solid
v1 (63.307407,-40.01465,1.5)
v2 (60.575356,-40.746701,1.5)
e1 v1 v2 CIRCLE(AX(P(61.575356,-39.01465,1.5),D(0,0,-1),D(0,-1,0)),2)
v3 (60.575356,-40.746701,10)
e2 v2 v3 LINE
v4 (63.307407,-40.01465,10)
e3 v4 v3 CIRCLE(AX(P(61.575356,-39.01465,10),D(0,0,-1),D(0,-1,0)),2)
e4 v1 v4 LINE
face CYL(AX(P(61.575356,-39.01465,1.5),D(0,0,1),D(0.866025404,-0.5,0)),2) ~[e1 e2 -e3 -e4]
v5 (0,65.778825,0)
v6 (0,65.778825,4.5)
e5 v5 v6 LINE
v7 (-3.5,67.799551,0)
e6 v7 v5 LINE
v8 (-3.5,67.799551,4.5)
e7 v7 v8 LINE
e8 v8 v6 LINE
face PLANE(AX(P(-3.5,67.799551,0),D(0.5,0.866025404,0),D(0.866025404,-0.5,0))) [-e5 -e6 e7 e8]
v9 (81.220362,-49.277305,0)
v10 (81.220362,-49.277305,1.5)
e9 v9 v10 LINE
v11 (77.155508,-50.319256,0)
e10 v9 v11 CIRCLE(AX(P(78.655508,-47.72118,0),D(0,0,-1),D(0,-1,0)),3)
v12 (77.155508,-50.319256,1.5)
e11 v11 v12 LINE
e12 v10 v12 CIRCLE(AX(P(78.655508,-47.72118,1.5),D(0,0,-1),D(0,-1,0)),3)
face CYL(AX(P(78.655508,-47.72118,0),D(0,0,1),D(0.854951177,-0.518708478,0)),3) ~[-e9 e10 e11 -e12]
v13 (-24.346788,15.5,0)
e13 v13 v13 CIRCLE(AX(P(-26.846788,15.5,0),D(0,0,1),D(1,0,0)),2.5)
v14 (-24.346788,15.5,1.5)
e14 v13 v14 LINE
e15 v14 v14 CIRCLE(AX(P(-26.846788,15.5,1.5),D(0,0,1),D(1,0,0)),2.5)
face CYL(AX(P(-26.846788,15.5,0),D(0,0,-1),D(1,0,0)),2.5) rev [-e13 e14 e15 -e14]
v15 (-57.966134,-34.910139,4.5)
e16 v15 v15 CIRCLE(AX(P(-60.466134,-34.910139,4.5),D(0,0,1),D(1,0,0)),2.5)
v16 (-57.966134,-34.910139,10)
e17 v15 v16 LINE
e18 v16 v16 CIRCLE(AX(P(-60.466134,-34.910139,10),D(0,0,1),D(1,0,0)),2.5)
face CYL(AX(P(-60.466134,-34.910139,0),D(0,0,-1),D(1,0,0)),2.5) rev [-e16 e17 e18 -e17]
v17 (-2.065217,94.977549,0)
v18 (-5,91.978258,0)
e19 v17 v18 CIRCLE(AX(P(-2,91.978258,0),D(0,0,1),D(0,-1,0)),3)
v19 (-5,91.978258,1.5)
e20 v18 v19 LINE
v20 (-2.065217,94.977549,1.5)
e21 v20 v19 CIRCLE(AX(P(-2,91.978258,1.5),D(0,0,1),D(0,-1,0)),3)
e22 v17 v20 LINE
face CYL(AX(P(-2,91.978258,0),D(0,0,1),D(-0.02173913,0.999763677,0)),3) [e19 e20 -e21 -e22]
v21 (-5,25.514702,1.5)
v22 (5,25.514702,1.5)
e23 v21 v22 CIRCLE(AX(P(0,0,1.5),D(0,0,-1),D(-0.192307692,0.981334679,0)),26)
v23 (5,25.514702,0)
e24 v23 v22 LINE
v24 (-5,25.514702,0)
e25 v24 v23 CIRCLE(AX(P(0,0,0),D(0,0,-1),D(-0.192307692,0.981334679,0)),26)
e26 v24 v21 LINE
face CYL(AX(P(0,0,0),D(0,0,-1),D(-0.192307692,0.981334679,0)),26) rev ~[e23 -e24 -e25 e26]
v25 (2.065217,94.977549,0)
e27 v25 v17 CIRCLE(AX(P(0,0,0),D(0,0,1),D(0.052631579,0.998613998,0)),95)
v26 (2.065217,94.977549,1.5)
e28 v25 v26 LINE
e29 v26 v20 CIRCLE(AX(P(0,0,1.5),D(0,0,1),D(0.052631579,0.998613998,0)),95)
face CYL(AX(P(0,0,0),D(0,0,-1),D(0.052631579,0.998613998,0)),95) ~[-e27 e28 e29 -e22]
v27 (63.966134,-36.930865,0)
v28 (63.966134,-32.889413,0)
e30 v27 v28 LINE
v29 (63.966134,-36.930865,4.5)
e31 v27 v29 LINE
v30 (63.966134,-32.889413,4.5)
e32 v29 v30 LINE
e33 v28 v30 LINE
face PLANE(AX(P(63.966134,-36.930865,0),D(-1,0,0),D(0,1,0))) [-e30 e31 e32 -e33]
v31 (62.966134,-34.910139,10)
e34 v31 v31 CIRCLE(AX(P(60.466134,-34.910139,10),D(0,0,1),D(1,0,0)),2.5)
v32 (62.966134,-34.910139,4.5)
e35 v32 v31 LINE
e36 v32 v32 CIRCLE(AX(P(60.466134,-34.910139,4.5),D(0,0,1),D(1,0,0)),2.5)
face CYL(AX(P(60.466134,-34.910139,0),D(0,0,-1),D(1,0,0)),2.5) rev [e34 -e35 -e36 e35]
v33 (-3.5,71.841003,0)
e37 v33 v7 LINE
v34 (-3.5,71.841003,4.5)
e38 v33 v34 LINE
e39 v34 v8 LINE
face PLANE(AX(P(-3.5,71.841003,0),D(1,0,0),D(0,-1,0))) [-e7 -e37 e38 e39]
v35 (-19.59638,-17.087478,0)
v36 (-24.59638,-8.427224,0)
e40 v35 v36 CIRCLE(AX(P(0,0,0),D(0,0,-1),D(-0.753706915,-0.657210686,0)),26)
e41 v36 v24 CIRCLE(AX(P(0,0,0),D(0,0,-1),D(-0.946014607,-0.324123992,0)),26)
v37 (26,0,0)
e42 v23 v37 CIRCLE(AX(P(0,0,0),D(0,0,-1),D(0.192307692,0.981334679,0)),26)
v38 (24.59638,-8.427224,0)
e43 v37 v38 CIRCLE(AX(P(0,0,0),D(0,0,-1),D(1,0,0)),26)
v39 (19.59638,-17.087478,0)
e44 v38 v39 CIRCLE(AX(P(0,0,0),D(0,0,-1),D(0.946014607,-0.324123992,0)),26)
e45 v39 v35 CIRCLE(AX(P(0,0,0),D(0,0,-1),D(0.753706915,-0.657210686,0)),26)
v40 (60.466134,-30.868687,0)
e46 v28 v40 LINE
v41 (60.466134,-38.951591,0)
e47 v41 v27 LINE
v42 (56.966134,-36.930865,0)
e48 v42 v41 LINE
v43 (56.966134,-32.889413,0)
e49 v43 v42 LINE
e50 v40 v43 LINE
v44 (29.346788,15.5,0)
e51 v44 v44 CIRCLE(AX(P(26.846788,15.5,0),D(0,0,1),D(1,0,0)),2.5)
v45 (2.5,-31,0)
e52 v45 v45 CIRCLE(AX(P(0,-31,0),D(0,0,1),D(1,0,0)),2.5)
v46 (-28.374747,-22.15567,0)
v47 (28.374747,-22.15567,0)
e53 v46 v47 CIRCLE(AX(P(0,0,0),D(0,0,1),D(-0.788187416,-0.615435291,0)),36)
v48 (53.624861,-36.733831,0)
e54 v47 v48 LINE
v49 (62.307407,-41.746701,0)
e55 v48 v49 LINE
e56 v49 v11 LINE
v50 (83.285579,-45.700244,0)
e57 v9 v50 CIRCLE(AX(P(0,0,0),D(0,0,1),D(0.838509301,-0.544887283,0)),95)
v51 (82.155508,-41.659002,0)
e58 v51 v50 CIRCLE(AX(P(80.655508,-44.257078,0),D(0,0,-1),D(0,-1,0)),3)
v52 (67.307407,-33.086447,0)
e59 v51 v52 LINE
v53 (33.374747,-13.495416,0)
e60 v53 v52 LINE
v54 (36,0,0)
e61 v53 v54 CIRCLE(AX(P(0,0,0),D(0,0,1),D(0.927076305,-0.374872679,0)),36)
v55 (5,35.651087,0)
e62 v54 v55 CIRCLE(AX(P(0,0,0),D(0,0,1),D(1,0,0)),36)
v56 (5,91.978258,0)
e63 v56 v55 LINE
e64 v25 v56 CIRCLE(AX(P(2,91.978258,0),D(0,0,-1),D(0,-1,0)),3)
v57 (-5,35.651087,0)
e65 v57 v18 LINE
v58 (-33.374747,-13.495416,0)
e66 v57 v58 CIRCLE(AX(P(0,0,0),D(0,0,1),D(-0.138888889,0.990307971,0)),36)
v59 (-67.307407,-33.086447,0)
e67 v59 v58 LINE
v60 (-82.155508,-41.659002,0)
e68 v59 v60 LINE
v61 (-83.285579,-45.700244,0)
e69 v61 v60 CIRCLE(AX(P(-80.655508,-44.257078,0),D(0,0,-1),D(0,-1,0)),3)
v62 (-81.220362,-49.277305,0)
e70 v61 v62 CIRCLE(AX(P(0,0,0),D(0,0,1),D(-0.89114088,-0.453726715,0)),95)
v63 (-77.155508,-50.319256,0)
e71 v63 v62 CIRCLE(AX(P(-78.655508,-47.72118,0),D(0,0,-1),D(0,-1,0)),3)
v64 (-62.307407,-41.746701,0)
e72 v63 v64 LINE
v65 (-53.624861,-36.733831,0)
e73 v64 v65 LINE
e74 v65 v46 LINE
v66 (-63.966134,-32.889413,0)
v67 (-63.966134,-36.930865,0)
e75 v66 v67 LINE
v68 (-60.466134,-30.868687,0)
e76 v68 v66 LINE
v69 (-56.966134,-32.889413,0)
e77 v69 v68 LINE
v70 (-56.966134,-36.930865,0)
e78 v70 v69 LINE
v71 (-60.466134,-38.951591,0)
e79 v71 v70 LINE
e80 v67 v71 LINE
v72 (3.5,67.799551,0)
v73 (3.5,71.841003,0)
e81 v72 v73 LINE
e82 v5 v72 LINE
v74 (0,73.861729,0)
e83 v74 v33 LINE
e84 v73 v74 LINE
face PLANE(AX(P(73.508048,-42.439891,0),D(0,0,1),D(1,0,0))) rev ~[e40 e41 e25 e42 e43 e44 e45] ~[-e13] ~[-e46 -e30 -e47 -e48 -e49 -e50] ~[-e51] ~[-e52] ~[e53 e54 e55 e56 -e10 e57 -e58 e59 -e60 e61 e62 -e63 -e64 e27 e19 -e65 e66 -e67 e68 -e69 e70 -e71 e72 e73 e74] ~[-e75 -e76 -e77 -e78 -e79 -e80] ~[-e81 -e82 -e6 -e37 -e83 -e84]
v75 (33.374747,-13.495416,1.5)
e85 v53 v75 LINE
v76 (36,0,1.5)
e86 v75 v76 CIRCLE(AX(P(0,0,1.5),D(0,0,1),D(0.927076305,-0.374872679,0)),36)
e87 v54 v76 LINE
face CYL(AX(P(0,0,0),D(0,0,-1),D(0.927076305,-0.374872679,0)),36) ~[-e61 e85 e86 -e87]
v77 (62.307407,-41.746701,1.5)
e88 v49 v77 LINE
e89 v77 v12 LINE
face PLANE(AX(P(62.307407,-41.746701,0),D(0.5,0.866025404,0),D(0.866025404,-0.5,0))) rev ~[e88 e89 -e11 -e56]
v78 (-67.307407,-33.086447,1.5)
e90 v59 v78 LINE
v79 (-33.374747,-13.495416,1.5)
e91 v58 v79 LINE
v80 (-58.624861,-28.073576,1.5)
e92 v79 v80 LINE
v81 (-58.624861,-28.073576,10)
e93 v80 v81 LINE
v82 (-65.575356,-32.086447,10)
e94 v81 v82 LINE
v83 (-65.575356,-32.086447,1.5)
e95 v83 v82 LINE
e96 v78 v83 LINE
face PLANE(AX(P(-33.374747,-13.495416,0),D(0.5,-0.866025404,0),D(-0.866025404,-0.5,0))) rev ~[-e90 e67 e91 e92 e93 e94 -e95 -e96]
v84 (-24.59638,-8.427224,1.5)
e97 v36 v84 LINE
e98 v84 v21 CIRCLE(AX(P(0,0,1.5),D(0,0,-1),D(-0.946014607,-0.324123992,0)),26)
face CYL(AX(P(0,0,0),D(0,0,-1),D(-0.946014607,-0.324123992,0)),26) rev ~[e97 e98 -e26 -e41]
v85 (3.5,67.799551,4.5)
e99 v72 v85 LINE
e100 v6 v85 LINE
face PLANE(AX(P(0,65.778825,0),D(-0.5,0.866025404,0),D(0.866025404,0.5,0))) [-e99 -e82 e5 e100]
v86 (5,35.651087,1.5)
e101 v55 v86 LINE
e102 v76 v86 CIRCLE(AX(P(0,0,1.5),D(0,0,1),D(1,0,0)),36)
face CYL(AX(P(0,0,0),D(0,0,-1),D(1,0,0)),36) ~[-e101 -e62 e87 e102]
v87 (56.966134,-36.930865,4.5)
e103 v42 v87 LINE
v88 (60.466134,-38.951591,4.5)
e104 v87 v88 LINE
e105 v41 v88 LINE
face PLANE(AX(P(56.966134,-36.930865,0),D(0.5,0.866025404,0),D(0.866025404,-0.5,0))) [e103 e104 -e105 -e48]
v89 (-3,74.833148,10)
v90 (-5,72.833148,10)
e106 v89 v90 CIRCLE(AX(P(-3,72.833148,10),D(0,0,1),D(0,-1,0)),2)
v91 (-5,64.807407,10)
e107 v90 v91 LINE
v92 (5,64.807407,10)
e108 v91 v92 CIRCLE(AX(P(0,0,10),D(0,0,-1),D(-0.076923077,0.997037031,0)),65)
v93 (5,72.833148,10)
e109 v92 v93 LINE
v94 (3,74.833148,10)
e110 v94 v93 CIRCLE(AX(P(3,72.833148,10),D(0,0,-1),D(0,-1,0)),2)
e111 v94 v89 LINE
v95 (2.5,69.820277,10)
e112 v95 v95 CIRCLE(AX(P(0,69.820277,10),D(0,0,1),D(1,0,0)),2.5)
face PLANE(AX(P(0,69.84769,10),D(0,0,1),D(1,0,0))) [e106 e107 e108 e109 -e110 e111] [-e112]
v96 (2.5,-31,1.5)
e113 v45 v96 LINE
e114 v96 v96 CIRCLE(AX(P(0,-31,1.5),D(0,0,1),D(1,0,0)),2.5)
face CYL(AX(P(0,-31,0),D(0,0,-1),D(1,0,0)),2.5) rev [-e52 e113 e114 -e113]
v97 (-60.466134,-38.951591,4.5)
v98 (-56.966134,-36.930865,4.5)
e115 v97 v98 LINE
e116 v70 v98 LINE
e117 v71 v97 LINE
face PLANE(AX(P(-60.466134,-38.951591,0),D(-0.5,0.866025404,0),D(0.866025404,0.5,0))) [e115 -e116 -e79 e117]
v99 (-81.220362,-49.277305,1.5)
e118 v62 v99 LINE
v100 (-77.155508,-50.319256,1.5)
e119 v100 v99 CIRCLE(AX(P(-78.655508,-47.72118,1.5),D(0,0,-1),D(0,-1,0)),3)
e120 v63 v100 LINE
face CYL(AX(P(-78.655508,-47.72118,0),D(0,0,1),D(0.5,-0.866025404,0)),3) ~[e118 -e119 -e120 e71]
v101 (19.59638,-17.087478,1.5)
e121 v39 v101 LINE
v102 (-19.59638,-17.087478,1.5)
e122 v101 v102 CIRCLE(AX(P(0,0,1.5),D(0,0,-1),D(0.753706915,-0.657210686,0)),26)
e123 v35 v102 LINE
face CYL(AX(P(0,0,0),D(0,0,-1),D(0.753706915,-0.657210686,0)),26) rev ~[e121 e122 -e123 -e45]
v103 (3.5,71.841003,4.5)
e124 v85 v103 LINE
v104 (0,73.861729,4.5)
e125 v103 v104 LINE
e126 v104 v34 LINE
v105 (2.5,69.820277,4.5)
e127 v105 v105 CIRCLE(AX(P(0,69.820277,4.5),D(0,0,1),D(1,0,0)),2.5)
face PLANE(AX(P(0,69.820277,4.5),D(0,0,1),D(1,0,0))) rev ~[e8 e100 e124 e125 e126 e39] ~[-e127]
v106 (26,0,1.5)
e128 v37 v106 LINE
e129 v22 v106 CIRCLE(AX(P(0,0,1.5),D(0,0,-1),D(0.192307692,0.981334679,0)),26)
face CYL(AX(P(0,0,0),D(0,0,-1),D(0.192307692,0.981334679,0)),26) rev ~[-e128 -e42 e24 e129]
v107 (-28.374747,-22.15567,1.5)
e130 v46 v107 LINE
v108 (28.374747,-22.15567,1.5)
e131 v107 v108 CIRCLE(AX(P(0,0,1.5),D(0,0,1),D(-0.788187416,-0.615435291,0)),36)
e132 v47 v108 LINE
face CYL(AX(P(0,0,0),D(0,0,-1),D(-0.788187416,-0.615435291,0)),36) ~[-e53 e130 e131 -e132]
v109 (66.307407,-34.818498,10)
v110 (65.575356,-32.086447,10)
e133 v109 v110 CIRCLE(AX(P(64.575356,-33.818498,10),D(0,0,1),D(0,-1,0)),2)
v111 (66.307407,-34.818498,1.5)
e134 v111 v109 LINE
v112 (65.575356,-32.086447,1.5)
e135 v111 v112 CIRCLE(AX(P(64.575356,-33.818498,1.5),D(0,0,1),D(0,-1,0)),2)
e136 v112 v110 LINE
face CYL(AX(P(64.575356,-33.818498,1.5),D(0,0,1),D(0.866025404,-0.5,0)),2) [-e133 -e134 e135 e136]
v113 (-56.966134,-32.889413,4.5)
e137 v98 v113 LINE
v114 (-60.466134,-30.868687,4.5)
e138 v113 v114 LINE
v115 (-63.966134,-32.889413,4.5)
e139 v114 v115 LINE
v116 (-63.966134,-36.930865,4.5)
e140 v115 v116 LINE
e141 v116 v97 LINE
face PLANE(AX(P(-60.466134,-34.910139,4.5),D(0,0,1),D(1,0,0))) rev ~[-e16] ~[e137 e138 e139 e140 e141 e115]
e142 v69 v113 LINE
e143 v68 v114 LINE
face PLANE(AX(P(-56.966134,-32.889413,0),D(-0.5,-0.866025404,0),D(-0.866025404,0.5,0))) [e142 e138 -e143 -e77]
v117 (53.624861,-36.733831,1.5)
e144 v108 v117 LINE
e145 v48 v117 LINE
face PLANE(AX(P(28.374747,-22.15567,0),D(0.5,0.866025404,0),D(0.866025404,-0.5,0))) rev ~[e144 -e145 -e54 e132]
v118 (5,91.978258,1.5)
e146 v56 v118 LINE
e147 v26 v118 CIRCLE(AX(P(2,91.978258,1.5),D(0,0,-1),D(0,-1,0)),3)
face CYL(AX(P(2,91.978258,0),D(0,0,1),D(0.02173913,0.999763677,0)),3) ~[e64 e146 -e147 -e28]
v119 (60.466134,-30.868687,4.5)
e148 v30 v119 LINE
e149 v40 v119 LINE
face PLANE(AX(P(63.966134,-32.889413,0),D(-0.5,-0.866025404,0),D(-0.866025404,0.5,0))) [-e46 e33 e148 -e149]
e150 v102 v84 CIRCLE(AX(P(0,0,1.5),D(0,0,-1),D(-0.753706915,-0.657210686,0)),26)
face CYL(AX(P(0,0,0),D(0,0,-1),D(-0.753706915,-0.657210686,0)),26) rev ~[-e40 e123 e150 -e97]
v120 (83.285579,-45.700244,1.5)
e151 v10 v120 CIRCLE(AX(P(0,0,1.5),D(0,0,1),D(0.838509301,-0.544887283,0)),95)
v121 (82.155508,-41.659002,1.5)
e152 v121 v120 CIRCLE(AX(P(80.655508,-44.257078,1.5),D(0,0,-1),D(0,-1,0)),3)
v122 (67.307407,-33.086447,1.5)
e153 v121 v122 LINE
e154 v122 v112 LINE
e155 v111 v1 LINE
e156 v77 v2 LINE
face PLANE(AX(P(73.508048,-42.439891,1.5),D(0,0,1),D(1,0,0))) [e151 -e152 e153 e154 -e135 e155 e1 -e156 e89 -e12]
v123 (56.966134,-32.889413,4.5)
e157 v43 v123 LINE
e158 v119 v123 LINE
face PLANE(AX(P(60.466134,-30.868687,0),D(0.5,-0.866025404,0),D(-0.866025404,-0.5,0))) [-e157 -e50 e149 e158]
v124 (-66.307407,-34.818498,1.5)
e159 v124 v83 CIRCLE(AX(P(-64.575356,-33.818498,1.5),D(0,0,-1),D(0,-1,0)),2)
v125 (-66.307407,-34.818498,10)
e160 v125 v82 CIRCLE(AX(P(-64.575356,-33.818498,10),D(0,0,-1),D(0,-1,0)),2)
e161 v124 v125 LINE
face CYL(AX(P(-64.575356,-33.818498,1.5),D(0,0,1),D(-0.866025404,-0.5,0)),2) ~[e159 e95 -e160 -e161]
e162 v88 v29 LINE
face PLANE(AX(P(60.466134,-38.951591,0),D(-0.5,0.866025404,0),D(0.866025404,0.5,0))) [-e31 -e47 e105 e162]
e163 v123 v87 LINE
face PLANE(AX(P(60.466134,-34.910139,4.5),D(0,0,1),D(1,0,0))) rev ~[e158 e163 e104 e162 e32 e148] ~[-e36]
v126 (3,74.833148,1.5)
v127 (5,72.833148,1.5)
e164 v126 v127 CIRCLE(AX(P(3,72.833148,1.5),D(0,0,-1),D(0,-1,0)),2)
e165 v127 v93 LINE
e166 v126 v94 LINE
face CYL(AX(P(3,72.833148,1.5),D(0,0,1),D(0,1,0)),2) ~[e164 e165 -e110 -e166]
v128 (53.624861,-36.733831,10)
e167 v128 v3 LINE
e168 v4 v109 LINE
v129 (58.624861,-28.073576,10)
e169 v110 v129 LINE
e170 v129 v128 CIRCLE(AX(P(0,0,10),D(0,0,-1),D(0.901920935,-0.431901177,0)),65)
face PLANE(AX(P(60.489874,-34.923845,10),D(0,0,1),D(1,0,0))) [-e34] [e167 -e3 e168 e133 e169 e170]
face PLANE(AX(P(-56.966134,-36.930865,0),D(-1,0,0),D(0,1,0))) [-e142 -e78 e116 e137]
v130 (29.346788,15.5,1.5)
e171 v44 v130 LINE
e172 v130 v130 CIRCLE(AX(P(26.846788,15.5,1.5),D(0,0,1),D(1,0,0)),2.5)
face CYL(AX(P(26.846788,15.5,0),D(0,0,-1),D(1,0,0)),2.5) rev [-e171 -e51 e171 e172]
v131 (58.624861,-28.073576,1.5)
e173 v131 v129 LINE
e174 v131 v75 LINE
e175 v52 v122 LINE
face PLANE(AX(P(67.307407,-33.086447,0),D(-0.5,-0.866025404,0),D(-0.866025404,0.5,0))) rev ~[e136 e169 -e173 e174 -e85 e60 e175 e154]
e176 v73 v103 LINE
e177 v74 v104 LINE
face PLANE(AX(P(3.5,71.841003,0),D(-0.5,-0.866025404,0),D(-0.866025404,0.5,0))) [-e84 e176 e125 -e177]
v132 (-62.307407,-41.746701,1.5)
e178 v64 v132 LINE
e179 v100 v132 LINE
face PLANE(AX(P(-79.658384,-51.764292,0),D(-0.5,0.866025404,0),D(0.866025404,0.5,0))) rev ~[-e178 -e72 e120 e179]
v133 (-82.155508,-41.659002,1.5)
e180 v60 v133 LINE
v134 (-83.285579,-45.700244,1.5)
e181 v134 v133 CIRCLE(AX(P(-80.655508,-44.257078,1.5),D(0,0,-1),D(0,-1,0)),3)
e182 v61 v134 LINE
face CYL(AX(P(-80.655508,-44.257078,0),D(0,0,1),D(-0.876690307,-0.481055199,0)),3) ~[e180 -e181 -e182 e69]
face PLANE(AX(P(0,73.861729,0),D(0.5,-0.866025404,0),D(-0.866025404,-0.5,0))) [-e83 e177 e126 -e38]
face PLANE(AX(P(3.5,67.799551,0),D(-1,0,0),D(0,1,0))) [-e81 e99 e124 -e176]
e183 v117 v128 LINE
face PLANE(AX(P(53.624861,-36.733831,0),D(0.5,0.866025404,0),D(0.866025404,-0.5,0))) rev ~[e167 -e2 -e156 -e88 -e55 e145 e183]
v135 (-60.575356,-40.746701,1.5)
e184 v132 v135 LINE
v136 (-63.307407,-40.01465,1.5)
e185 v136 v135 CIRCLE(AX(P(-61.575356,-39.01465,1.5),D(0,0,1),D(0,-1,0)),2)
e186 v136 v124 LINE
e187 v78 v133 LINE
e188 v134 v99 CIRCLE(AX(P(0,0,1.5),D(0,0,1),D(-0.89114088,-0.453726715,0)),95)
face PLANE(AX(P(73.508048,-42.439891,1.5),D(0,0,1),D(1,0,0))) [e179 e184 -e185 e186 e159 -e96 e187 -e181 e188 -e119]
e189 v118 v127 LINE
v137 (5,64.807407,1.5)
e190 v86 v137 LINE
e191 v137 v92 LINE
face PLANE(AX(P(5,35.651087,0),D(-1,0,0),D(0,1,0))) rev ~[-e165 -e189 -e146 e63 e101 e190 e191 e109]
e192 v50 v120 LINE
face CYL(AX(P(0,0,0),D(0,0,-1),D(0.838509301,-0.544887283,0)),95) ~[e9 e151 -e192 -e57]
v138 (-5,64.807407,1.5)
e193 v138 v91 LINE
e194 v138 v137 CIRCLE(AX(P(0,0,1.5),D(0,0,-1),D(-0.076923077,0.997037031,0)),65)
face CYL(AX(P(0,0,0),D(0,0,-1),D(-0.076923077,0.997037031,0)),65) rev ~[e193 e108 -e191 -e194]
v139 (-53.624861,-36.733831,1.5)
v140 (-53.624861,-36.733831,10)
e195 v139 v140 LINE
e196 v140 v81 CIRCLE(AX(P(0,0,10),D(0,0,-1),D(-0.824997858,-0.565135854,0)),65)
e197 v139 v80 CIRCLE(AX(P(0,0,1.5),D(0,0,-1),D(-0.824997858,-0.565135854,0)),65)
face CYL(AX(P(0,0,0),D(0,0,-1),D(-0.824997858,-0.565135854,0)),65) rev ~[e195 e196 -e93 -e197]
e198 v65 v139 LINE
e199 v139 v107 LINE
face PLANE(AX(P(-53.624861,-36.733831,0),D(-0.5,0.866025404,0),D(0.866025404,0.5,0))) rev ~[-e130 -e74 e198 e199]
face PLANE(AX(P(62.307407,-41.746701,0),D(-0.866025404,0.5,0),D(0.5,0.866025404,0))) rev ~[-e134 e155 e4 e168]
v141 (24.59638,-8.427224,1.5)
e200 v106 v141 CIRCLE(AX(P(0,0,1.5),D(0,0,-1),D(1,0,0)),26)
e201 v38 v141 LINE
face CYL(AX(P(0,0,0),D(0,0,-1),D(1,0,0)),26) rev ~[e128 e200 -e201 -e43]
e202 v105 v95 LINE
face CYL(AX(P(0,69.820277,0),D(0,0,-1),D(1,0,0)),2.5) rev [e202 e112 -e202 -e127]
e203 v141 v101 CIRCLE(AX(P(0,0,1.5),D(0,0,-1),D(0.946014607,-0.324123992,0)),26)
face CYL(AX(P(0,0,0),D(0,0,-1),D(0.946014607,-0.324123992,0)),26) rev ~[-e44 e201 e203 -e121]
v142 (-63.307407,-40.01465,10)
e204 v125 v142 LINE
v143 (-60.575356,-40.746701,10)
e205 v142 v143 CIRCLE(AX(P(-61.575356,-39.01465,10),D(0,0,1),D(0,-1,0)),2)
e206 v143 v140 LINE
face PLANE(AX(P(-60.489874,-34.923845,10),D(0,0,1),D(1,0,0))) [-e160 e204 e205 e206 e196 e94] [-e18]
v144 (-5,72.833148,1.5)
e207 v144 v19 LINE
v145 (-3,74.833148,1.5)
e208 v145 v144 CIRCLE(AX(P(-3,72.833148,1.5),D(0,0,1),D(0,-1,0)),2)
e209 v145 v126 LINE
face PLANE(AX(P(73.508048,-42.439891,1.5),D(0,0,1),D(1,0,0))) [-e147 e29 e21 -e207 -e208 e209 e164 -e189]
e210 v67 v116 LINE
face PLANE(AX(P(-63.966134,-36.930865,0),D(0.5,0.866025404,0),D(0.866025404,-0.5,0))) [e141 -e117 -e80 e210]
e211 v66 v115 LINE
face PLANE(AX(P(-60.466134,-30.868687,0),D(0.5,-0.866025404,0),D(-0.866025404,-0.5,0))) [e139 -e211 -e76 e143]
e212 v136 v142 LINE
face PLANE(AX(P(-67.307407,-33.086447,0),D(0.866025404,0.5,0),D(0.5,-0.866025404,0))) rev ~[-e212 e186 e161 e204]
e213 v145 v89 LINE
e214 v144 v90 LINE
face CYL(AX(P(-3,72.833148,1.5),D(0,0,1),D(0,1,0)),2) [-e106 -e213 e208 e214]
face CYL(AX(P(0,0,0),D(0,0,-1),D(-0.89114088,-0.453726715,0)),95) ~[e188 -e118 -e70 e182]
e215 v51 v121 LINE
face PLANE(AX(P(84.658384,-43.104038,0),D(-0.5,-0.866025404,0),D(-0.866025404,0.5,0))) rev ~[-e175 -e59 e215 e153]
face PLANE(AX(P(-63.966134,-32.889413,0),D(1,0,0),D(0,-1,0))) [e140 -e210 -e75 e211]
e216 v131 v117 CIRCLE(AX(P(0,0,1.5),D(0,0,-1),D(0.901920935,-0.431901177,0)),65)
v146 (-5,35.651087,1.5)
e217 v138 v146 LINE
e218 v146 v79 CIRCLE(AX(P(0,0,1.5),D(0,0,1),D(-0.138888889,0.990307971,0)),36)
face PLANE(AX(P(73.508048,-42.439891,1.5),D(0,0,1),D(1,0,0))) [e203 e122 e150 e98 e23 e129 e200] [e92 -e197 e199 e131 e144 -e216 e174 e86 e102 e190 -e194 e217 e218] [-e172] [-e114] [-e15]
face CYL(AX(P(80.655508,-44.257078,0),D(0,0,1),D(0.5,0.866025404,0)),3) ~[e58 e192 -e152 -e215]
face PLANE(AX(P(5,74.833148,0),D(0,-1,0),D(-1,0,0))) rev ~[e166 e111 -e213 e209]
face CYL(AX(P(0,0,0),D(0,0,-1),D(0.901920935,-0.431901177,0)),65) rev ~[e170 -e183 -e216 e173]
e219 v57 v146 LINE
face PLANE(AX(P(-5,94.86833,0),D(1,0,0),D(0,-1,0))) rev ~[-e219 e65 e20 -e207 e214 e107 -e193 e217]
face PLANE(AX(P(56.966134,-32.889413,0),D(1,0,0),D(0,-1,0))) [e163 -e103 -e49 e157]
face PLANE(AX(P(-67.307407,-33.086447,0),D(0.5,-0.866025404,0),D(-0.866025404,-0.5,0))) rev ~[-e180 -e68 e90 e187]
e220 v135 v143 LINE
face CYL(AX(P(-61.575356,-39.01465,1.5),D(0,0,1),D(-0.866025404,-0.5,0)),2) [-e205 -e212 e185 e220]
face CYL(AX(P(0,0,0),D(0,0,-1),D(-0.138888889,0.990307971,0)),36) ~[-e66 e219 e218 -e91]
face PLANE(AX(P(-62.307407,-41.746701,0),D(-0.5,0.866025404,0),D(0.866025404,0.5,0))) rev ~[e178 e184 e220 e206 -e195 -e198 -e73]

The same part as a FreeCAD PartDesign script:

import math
import FreeCAD as App
import Part
import Sketcher
Q = App.Units.Quantity


def edges_at(feature, points):
    """Names of the edges that pass closest to the given points."""
    edges = feature.Shape.Edges
    near = lambda p: min(range(len(edges)), key=lambda i: edges[i].distToShape(Part.Vertex(*p))[0])
    return sorted({f"Edge{near(p) + 1}" for p in points})

doc = App.newDocument("Part")
body = doc.addObject("PartDesign::Body", "Body")

# Sketch on XY plane
sketch1 = body.newObject("Sketcher::SketchObject", "Sketch")
sketch1.AttachmentSupport = (doc.getObject("XY_Plane"), [""])
sketch1.MapMode = "FlatFace"
sketch1.addGeometry(Part.LineSegment(App.Vector(84.658384, -43.104038, 0), App.Vector(67.307407, -33.086447, 0)), False)
sketch1.addGeometry(Part.LineSegment(App.Vector(67.307407, -33.086447, 0), App.Vector(33.374747, -13.495416, 0)), False)
sketch1.addGeometry(Part.ArcOfCircle(Part.Circle(App.Vector(0, 0, 0), App.Vector(0, 0, 1), 36), math.radians(-22.016444), math.radians(0)), False)
sketch1.addGeometry(Part.ArcOfCircle(Part.Circle(App.Vector(0, 0, 0), App.Vector(0, 0, 1), 36), math.radians(0), math.radians(82.016444)), False)
sketch1.addGeometry(Part.LineSegment(App.Vector(5, 35.651087, 0), App.Vector(5, 94.86833, 0)), False)
sketch1.addGeometry(Part.ArcOfCircle(Part.Circle(App.Vector(0, 0, 0), App.Vector(0, 0, 1), 95), math.radians(86.983039), math.radians(93.016961)), False)
sketch1.addGeometry(Part.LineSegment(App.Vector(-5, 94.86833, 0), App.Vector(-5, 35.651087, 0)), False)
sketch1.addGeometry(Part.ArcOfCircle(Part.Circle(App.Vector(0, 0, 0), App.Vector(0, 0, 1), 36), math.radians(97.983556), math.radians(202.016444)), False)
sketch1.addGeometry(Part.LineSegment(App.Vector(-33.374747, -13.495416, 0), App.Vector(-67.307407, -33.086447, 0)), False)
sketch1.addGeometry(Part.LineSegment(App.Vector(-67.307407, -33.086447, 0), App.Vector(-84.658384, -43.104038, 0)), False)
sketch1.addGeometry(Part.ArcOfCircle(Part.Circle(App.Vector(0, 0, 0), App.Vector(0, 0, 1), 95), math.radians(-153.016961), math.radians(-146.983039)), False)
sketch1.addGeometry(Part.LineSegment(App.Vector(-79.658384, -51.764292, 0), App.Vector(-62.307407, -41.746701, 0)), False)
sketch1.addGeometry(Part.LineSegment(App.Vector(-62.307407, -41.746701, 0), App.Vector(-53.624861, -36.733831, 0)), False)
sketch1.addGeometry(Part.LineSegment(App.Vector(-53.624861, -36.733831, 0), App.Vector(-28.374747, -22.15567, 0)), False)
sketch1.addGeometry(Part.ArcOfCircle(Part.Circle(App.Vector(0, 0, 0), App.Vector(0, 0, 1), 36), math.radians(-142.016444), math.radians(-37.983556)), False)
sketch1.addGeometry(Part.LineSegment(App.Vector(28.374747, -22.15567, 0), App.Vector(53.624861, -36.733831, 0)), False)
sketch1.addGeometry(Part.LineSegment(App.Vector(53.624861, -36.733831, 0), App.Vector(62.307407, -41.746701, 0)), False)
sketch1.addGeometry(Part.LineSegment(App.Vector(62.307407, -41.746701, 0), App.Vector(79.658384, -51.764292, 0)), False)
sketch1.addGeometry(Part.ArcOfCircle(Part.Circle(App.Vector(0, 0, 0), App.Vector(0, 0, 1), 95), math.radians(-33.016961), math.radians(-26.983039)), False)
sketch1.addGeometry(Part.Circle(App.Vector(-60.466134, -34.910139, 0), App.Vector(0, 0, 1), 2.5), False)
sketch1.addGeometry(Part.ArcOfCircle(Part.Circle(App.Vector(0, 0, 0), App.Vector(0, 0, 1), 26), math.radians(0), math.radians(78.912511)), False)
sketch1.addGeometry(Part.ArcOfCircle(Part.Circle(App.Vector(0, 0, 0), App.Vector(0, 0, 1), 26), math.radians(-18.912511), math.radians(0)), False)
sketch1.addGeometry(Part.ArcOfCircle(Part.Circle(App.Vector(0, 0, 0), App.Vector(0, 0, 1), 26), math.radians(-41.087489), math.radians(-18.912511)), False)
sketch1.addGeometry(Part.ArcOfCircle(Part.Circle(App.Vector(0, 0, 0), App.Vector(0, 0, 1), 26), math.radians(-138.912511), math.radians(-41.087489)), False)
sketch1.addGeometry(Part.ArcOfCircle(Part.Circle(App.Vector(0, 0, 0), App.Vector(0, 0, 1), 26), math.radians(-161.087489), math.radians(-138.912511)), False)
sketch1.addGeometry(Part.ArcOfCircle(Part.Circle(App.Vector(0, 0, 0), App.Vector(0, 0, 1), 26), math.radians(101.087489), math.radians(198.912511)), False)
sketch1.addGeometry(Part.ArcOfCircle(Part.Circle(App.Vector(0, 0, 0), App.Vector(0, 0, 1), 26), math.radians(78.912511), math.radians(101.087489)), False)
sketch1.addGeometry(Part.Circle(App.Vector(-26.846788, 15.5, 0), App.Vector(0, 0, 1), 2.5), False)
sketch1.addGeometry(Part.Circle(App.Vector(0, -31, 0), App.Vector(0, 0, 1), 2.5), False)
sketch1.addGeometry(Part.Circle(App.Vector(60.466134, -34.910139, 0), App.Vector(0, 0, 1), 2.5), False)
sketch1.addGeometry(Part.Circle(App.Vector(26.846788, 15.5, 0), App.Vector(0, 0, 1), 2.5), False)
sketch1.addGeometry(Part.Circle(App.Vector(0, 69.820277, 0), App.Vector(0, 0, 1), 2.5), False)
sketch1.addConstraint(Sketcher.Constraint("Coincident", 0, 2, 1, 1))
sketch1.addConstraint(Sketcher.Constraint("Coincident", 1, 2, 2, 1))
sketch1.addConstraint(Sketcher.Constraint("Tangent", 2, 2, 3, 1))
sketch1.addConstraint(Sketcher.Constraint("Coincident", 3, 2, 4, 1))
sketch1.addConstraint(Sketcher.Constraint("Coincident", 4, 2, 5, 1))
sketch1.addConstraint(Sketcher.Constraint("Coincident", 5, 2, 6, 1))
sketch1.addConstraint(Sketcher.Constraint("Coincident", 6, 2, 7, 1))
sketch1.addConstraint(Sketcher.Constraint("Coincident", 7, 2, 8, 1))
sketch1.addConstraint(Sketcher.Constraint("Coincident", 8, 2, 9, 1))
sketch1.addConstraint(Sketcher.Constraint("Coincident", 9, 2, 10, 1))
sketch1.addConstraint(Sketcher.Constraint("Coincident", 10, 2, 11, 1))
sketch1.addConstraint(Sketcher.Constraint("Coincident", 11, 2, 12, 1))
sketch1.addConstraint(Sketcher.Constraint("Coincident", 12, 2, 13, 1))
sketch1.addConstraint(Sketcher.Constraint("Coincident", 13, 2, 14, 1))
sketch1.addConstraint(Sketcher.Constraint("Coincident", 14, 2, 15, 1))
sketch1.addConstraint(Sketcher.Constraint("Coincident", 15, 2, 16, 1))
sketch1.addConstraint(Sketcher.Constraint("Coincident", 16, 2, 17, 1))
sketch1.addConstraint(Sketcher.Constraint("Coincident", 17, 2, 18, 1))
sketch1.addConstraint(Sketcher.Constraint("Coincident", 18, 2, 0, 1))
sketch1.addConstraint(Sketcher.Constraint("Tangent", 20, 1, 21, 2))
sketch1.addConstraint(Sketcher.Constraint("Tangent", 21, 1, 22, 2))
sketch1.addConstraint(Sketcher.Constraint("Tangent", 22, 1, 23, 2))
sketch1.addConstraint(Sketcher.Constraint("Tangent", 23, 1, 24, 2))
sketch1.addConstraint(Sketcher.Constraint("Tangent", 24, 1, 25, 2))
sketch1.addConstraint(Sketcher.Constraint("Tangent", 25, 1, 26, 2))
sketch1.addConstraint(Sketcher.Constraint("Tangent", 26, 1, 20, 2))
sketch1.addConstraint(Sketcher.Constraint("Vertical", 4))
sketch1.addConstraint(Sketcher.Constraint("Vertical", 6))
sketch1.addConstraint(Sketcher.Constraint("Coincident", 2, 3, -1, 1))
sketch1.addConstraint(Sketcher.Constraint("Coincident", 5, 3, -1, 1))
sketch1.addConstraint(Sketcher.Constraint("Coincident", 7, 3, -1, 1))
sketch1.addConstraint(Sketcher.Constraint("Coincident", 10, 3, -1, 1))
sketch1.addConstraint(Sketcher.Constraint("Coincident", 14, 3, -1, 1))
sketch1.addConstraint(Sketcher.Constraint("Coincident", 18, 3, -1, 1))
sketch1.addConstraint(Sketcher.Constraint("Coincident", 20, 3, -1, 1))
sketch1.addConstraint(Sketcher.Constraint("Coincident", 22, 3, -1, 1))
sketch1.addConstraint(Sketcher.Constraint("Coincident", 24, 3, -1, 1))
sketch1.addConstraint(Sketcher.Constraint("Equal", 2, 3))
sketch1.addConstraint(Sketcher.Constraint("Equal", 3, 7))
sketch1.addConstraint(Sketcher.Constraint("Equal", 5, 10))
sketch1.addConstraint(Sketcher.Constraint("Equal", 7, 14))
sketch1.addConstraint(Sketcher.Constraint("Equal", 10, 18))
sketch1.addConstraint(Sketcher.Constraint("Equal", 19, 27))
sketch1.addConstraint(Sketcher.Constraint("Equal", 27, 28))
sketch1.addConstraint(Sketcher.Constraint("Equal", 28, 29))
sketch1.addConstraint(Sketcher.Constraint("Equal", 29, 30))
sketch1.addConstraint(Sketcher.Constraint("Equal", 30, 31))
sketch1.addConstraint(Sketcher.Constraint("Symmetric", 19, 3, 29, 3, -2))
sketch1.addConstraint(Sketcher.Constraint("Symmetric", 27, 3, 30, 3, -2))
sketch1.addConstraint(Sketcher.Constraint("Symmetric", 0, 2, 8, 2, -2))
sketch1.addConstraint(Sketcher.Constraint("Symmetric", 12, 2, 15, 2, -2))
sketch1.addConstraint(Sketcher.Constraint("Symmetric", 11, 2, 16, 2, -2))
sketch1.addConstraint(Sketcher.Constraint("PointOnObject", 28, 3, -2))
sketch1.addConstraint(Sketcher.Constraint("PointOnObject", 31, 3, -2))
sketch1.addConstraint(Sketcher.Constraint("PointOnObject", 2, 2, -1))
sketch1.addConstraint(Sketcher.Constraint("PointOnObject", 20, 1, -1))
sketch1.addConstraint(Sketcher.Constraint("Parallel", 0, 1))
sketch1.addConstraint(Sketcher.Constraint("Parallel", 8, 9))
sketch1.addConstraint(Sketcher.Constraint("Parallel", 9, 11))
sketch1.addConstraint(Sketcher.Constraint("Parallel", 11, 12))
sketch1.addConstraint(Sketcher.Constraint("Parallel", 12, 13))
sketch1.addConstraint(Sketcher.Constraint("Parallel", 1, 15))
sketch1.addConstraint(Sketcher.Constraint("Parallel", 15, 16))
sketch1.addConstraint(Sketcher.Constraint("Parallel", 16, 17))
sketch1.addConstraint(Sketcher.Constraint("Horizontal", 4, 2, 5, 2))
sketch1.addConstraint(Sketcher.Constraint("Horizontal", 22, 1, 23, 1))
sketch1.addConstraint(Sketcher.Constraint("Horizontal", 21, 1, 24, 1))
sketch1.addConstraint(Sketcher.Constraint("Horizontal", 25, 1, 26, 1))
sketch1.addConstraint(Sketcher.Constraint("Vertical", 6, 2, 25, 1))
sketch1.addConstraint(Sketcher.Constraint("Equal", 9, 11))
sketch1.addConstraint(Sketcher.Constraint("Diameter", 19, Q("5 mm")))
sketch1.addConstraint(Sketcher.Constraint("Radius", 2, Q("36 mm")))
sketch1.addConstraint(Sketcher.Constraint("Radius", 5, Q("95 mm")))
sketch1.addConstraint(Sketcher.Constraint("Radius", 20, Q("26 mm")))
sketch1.addConstraint(Sketcher.Constraint("Angle", 0, Q("150 deg")))
sketch1.addConstraint(Sketcher.Constraint("DistanceY", 28, 3, -1, 1, Q("31 mm")))
sketch1.addConstraint(Sketcher.Constraint("DistanceX", -1, 1, 3, 2, Q("5 mm")))
sketch1.addConstraint(Sketcher.Constraint("DistanceX", 9, 2, 10, 2, Q("5 mm")))
sketch1.addConstraint(Sketcher.Constraint("DistanceX", 7, 2, 13, 2, Q("5 mm")))
sketch1.addConstraint(Sketcher.Constraint("DistanceX", 22, 1, 21, 1, Q("5 mm")))
sketch1.addConstraint(Sketcher.Constraint("DistanceY", -1, 1, 27, 3, Q("15.5 mm")))
sketch1.addConstraint(Sketcher.Constraint("DistanceY", 11, 2, -1, 1, Q("41.746701 mm")))
sketch1.addConstraint(Sketcher.Constraint("DistanceY", 9, 2, 19, 3, Q("8.193899 mm")))
sketch1.addConstraint(Sketcher.Constraint("Distance", 12, Q("10.025741 mm")))
sketch1.addConstraint(Sketcher.Constraint("DistanceX", -1, 1, 21, 1, Q("24.59638 mm")))
sketch1.addConstraint(Sketcher.Constraint("DistanceX", 30, 3, 0, 2, Q("40.460619 mm")))
sketch1.addConstraint(Sketcher.Constraint("DistanceY", 3, 2, 31, 3, Q("34.16919 mm")))
sketch1.addConstraint(Sketcher.Constraint("DistanceX", 9, 2, 19, 3, Q("24.19225 mm")))
pad1 = body.newObject("PartDesign::Pad", "Pad")
pad1.Profile = sketch1
pad1.Length = 1.5

# Sketch on XY plane
sketch2 = body.newObject("Sketcher::SketchObject", "Sketch001")
sketch2.AttachmentSupport = (doc.getObject("XY_Plane"), [""])
sketch2.MapMode = "FlatFace"
sketch2.addGeometry(Part.ArcOfCircle(Part.Circle(App.Vector(0, 0, 0), App.Vector(0, 0, 1), 65), math.radians(-154.411726), math.radians(-145.588274)), False)
sketch2.addGeometry(Part.LineSegment(App.Vector(-58.624861, -28.073576, 0), App.Vector(-67.307407, -33.086447, 0)), False)
sketch2.addGeometry(Part.LineSegment(App.Vector(-67.307407, -33.086447, 0), App.Vector(-62.307407, -41.746701, 0)), False)
sketch2.addGeometry(Part.LineSegment(App.Vector(-62.307407, -41.746701, 0), App.Vector(-53.624861, -36.733831, 0)), False)
sketch2.addGeometry(Part.Circle(App.Vector(-60.466134, -34.910139, 0), App.Vector(0, 0, 1), 2.5), False)
sketch2.addGeometry(Part.ArcOfCircle(Part.Circle(App.Vector(0, 0, 0), App.Vector(0, 0, 1), 65), math.radians(85.588274), math.radians(94.411726)), False)
sketch2.addGeometry(Part.LineSegment(App.Vector(5, 64.807407, 0), App.Vector(5, 74.833148, 0)), False)
sketch2.addGeometry(Part.LineSegment(App.Vector(5, 74.833148, 0), App.Vector(-5, 74.833148, 0)), False)
sketch2.addGeometry(Part.LineSegment(App.Vector(-5, 74.833148, 0), App.Vector(-5, 64.807407, 0)), False)
sketch2.addGeometry(Part.Circle(App.Vector(0, 69.820277, 0), App.Vector(0, 0, 1), 2.5), False)
sketch2.addGeometry(Part.LineSegment(App.Vector(67.307407, -33.086447, 0), App.Vector(58.624861, -28.073576, 0)), False)
sketch2.addGeometry(Part.ArcOfCircle(Part.Circle(App.Vector(0, 0, 0), App.Vector(0, 0, 1), 65), math.radians(-34.411726), math.radians(-25.588274)), False)
sketch2.addGeometry(Part.LineSegment(App.Vector(53.624861, -36.733831, 0), App.Vector(62.307407, -41.746701, 0)), False)
sketch2.addGeometry(Part.LineSegment(App.Vector(62.307407, -41.746701, 0), App.Vector(67.307407, -33.086447, 0)), False)
sketch2.addGeometry(Part.Circle(App.Vector(60.466134, -34.910139, 0), App.Vector(0, 0, 1), 2.5), False)
sketch2.addConstraint(Sketcher.Constraint("Coincident", 0, 1, 1, 1))
sketch2.addConstraint(Sketcher.Constraint("Coincident", 1, 2, 2, 1))
sketch2.addConstraint(Sketcher.Constraint("Coincident", 2, 2, 3, 1))
sketch2.addConstraint(Sketcher.Constraint("Coincident", 3, 2, 0, 2))
sketch2.addConstraint(Sketcher.Constraint("Coincident", 5, 1, 6, 1))
sketch2.addConstraint(Sketcher.Constraint("Coincident", 6, 2, 7, 1))
sketch2.addConstraint(Sketcher.Constraint("Coincident", 7, 2, 8, 1))
sketch2.addConstraint(Sketcher.Constraint("Coincident", 8, 2, 5, 2))
sketch2.addConstraint(Sketcher.Constraint("Coincident", 10, 2, 11, 2))
sketch2.addConstraint(Sketcher.Constraint("Coincident", 11, 1, 12, 1))
sketch2.addConstraint(Sketcher.Constraint("Coincident", 12, 2, 13, 1))
sketch2.addConstraint(Sketcher.Constraint("Coincident", 13, 2, 10, 1))
sketch2.addConstraint(Sketcher.Constraint("Vertical", 6))
sketch2.addConstraint(Sketcher.Constraint("Horizontal", 7))
sketch2.addConstraint(Sketcher.Constraint("Vertical", 8))
sketch2.addConstraint(Sketcher.Constraint("Coincident", 0, 3, -1, 1))
sketch2.addConstraint(Sketcher.Constraint("Coincident", 5, 3, -1, 1))
sketch2.addConstraint(Sketcher.Constraint("Coincident", 11, 3, -1, 1))
sketch2.addConstraint(Sketcher.Constraint("Equal", 0, 5))
sketch2.addConstraint(Sketcher.Constraint("Equal", 4, 9))
sketch2.addConstraint(Sketcher.Constraint("Equal", 5, 11))
sketch2.addConstraint(Sketcher.Constraint("Equal", 9, 14))
sketch2.addConstraint(Sketcher.Constraint("Symmetric", 4, 3, 14, 3, -2))
sketch2.addConstraint(Sketcher.Constraint("Symmetric", 2, 2, 12, 2, -2))
sketch2.addConstraint(Sketcher.Constraint("Symmetric", 1, 2, 13, 2, -2))
sketch2.addConstraint(Sketcher.Constraint("PointOnObject", 9, 3, -2))
sketch2.addConstraint(Sketcher.Constraint("Perpendicular", 1, 2))
sketch2.addConstraint(Sketcher.Constraint("Perpendicular", 2, 3))
sketch2.addConstraint(Sketcher.Constraint("Parallel", 10, 12))
sketch2.addConstraint(Sketcher.Constraint("Perpendicular", 12, 13))
sketch2.addConstraint(Sketcher.Constraint("Horizontal", 5, 1, 8, 2))
sketch2.addConstraint(Sketcher.Constraint("Equal", 1, 3))
sketch2.addConstraint(Sketcher.Constraint("Diameter", 4, Q("5 mm")))
sketch2.addConstraint(Sketcher.Constraint("Radius", 0, Q("65 mm")))
sketch2.addConstraint(Sketcher.Constraint("DistanceX", 7, 2, 7, 1, Q("10 mm")))
sketch2.addConstraint(Sketcher.Constraint("Angle", 1, Q("-150 deg")))
sketch2.addConstraint(Sketcher.Constraint("Distance", 2, Q("10 mm")))
sketch2.addConstraint(Sketcher.Constraint("DistanceY", 6, 1, 6, 2, Q("10.025741 mm")))
sketch2.addConstraint(Sketcher.Constraint("DistanceY", 2, 2, -1, 1, Q("41.746701 mm")))
sketch2.addConstraint(Sketcher.Constraint("DistanceY", 4, 3, -1, 1, Q("34.910139 mm")))
sketch2.addConstraint(Sketcher.Constraint("DistanceY", 5, 1, 9, 3, Q("5.01287 mm")))
sketch2.addConstraint(Sketcher.Constraint("DistanceX", 4, 3, -1, 1, Q("60.466134 mm")))
pad2 = body.newObject("PartDesign::Pad", "Pad001")
pad2.Profile = sketch2
pad2.Length = 10
doc.recompute()

fillet = body.newObject("PartDesign::Fillet", "Fillet")
fillet.Base = (pad2, edges_at(pad2, [
    (67.307, -33.086, 5.75),
    (62.307, -41.747, 5.75),
    (-62.307, -41.747, 5.75),
    (-67.307, -33.086, 5.75),
    (5, 74.833, 5.75),
    (-5, 74.833, 5.75),
]))
fillet.Radius = 2
doc.recompute()

fillet2 = body.newObject("PartDesign::Fillet", "Fillet001")
fillet2.Base = (fillet, edges_at(fillet, [
    (84.658, -43.104, 0.75),
    (79.658, -51.764, 0.75),
    (-79.658, -51.764, 0.75),
    (-84.658, -43.104, 0.75),
    (-5, 94.868, 0.75),
    (5, 94.868, 0.75),
]))
fillet2.Radius = 3

# Sketch on XY plane
sketch3 = body.newObject("Sketcher::SketchObject", "Sketch002")
sketch3.AttachmentSupport = (doc.getObject("XY_Plane"), [""])
sketch3.MapMode = "FlatFace"
sketch3.addGeometry(Part.LineSegment(App.Vector(56.966134, -36.930865, 0), App.Vector(60.466134, -38.951591, 0)), False)
sketch3.addGeometry(Part.LineSegment(App.Vector(60.466134, -38.951591, 0), App.Vector(63.966134, -36.930865, 0)), False)
sketch3.addGeometry(Part.LineSegment(App.Vector(63.966134, -36.930865, 0), App.Vector(63.966134, -32.889413, 0)), False)
sketch3.addGeometry(Part.LineSegment(App.Vector(63.966134, -32.889413, 0), App.Vector(60.466134, -30.868687, 0)), False)
sketch3.addGeometry(Part.LineSegment(App.Vector(60.466134, -30.868687, 0), App.Vector(56.966134, -32.889413, 0)), False)
sketch3.addGeometry(Part.LineSegment(App.Vector(56.966134, -32.889413, 0), App.Vector(56.966134, -36.930865, 0)), False)
sketch3.addGeometry(Part.Circle(App.Vector(60.466134, -34.910139, 0), App.Vector(0, 0, 1), 2.5), False)
sketch3.addGeometry(Part.LineSegment(App.Vector(-56.966134, -32.889413, 0), App.Vector(-60.466134, -30.868687, 0)), False)
sketch3.addGeometry(Part.LineSegment(App.Vector(-60.466134, -30.868687, 0), App.Vector(-63.966134, -32.889413, 0)), False)
sketch3.addGeometry(Part.LineSegment(App.Vector(-63.966134, -32.889413, 0), App.Vector(-63.966134, -36.930865, 0)), False)
sketch3.addGeometry(Part.LineSegment(App.Vector(-63.966134, -36.930865, 0), App.Vector(-60.466134, -38.951591, 0)), False)
sketch3.addGeometry(Part.LineSegment(App.Vector(-60.466134, -38.951591, 0), App.Vector(-56.966134, -36.930865, 0)), False)
sketch3.addGeometry(Part.LineSegment(App.Vector(-56.966134, -36.930865, 0), App.Vector(-56.966134, -32.889413, 0)), False)
sketch3.addGeometry(Part.Circle(App.Vector(-60.466134, -34.910139, 0), App.Vector(0, 0, 1), 2.5), False)
sketch3.addGeometry(Part.LineSegment(App.Vector(3.5, 67.799551, 0), App.Vector(3.5, 71.841003, 0)), False)
sketch3.addGeometry(Part.LineSegment(App.Vector(3.5, 71.841003, 0), App.Vector(0, 73.861729, 0)), False)
sketch3.addGeometry(Part.LineSegment(App.Vector(0, 73.861729, 0), App.Vector(-3.5, 71.841003, 0)), False)
sketch3.addGeometry(Part.LineSegment(App.Vector(-3.5, 71.841003, 0), App.Vector(-3.5, 67.799551, 0)), False)
sketch3.addGeometry(Part.LineSegment(App.Vector(-3.5, 67.799551, 0), App.Vector(0, 65.778825, 0)), False)
sketch3.addGeometry(Part.LineSegment(App.Vector(0, 65.778825, 0), App.Vector(3.5, 67.799551, 0)), False)
sketch3.addGeometry(Part.Circle(App.Vector(0, 69.820277, 0), App.Vector(0, 0, 1), 2.5), False)
sketch3.addConstraint(Sketcher.Constraint("Coincident", 0, 2, 1, 1))
sketch3.addConstraint(Sketcher.Constraint("Coincident", 1, 2, 2, 1))
sketch3.addConstraint(Sketcher.Constraint("Coincident", 2, 2, 3, 1))
sketch3.addConstraint(Sketcher.Constraint("Coincident", 3, 2, 4, 1))
sketch3.addConstraint(Sketcher.Constraint("Coincident", 4, 2, 5, 1))
sketch3.addConstraint(Sketcher.Constraint("Coincident", 5, 2, 0, 1))
sketch3.addConstraint(Sketcher.Constraint("Coincident", 7, 2, 8, 1))
sketch3.addConstraint(Sketcher.Constraint("Coincident", 8, 2, 9, 1))
sketch3.addConstraint(Sketcher.Constraint("Coincident", 9, 2, 10, 1))
sketch3.addConstraint(Sketcher.Constraint("Coincident", 10, 2, 11, 1))
sketch3.addConstraint(Sketcher.Constraint("Coincident", 11, 2, 12, 1))
sketch3.addConstraint(Sketcher.Constraint("Coincident", 12, 2, 7, 1))
sketch3.addConstraint(Sketcher.Constraint("Coincident", 14, 2, 15, 1))
sketch3.addConstraint(Sketcher.Constraint("Coincident", 15, 2, 16, 1))
sketch3.addConstraint(Sketcher.Constraint("Coincident", 16, 2, 17, 1))
sketch3.addConstraint(Sketcher.Constraint("Coincident", 17, 2, 18, 1))
sketch3.addConstraint(Sketcher.Constraint("Coincident", 18, 2, 19, 1))
sketch3.addConstraint(Sketcher.Constraint("Coincident", 19, 2, 14, 1))
sketch3.addConstraint(Sketcher.Constraint("Vertical", 2))
sketch3.addConstraint(Sketcher.Constraint("Vertical", 5))
sketch3.addConstraint(Sketcher.Constraint("Vertical", 9))
sketch3.addConstraint(Sketcher.Constraint("Vertical", 12))
sketch3.addConstraint(Sketcher.Constraint("Vertical", 14))
sketch3.addConstraint(Sketcher.Constraint("Vertical", 17))
sketch3.addConstraint(Sketcher.Constraint("Equal", 6, 13))
sketch3.addConstraint(Sketcher.Constraint("Equal", 13, 20))
sketch3.addConstraint(Sketcher.Constraint("Symmetric", 6, 3, 13, 3, -2))
sketch3.addConstraint(Sketcher.Constraint("Symmetric", 3, 2, 7, 2, -2))
sketch3.addConstraint(Sketcher.Constraint("Symmetric", 2, 2, 8, 2, -2))
sketch3.addConstraint(Sketcher.Constraint("Symmetric", 0, 2, 10, 2, -2))
sketch3.addConstraint(Sketcher.Constraint("Symmetric", 5, 2, 11, 2, -2))
sketch3.addConstraint(Sketcher.Constraint("Symmetric", 14, 2, 16, 2, -2))
sketch3.addConstraint(Sketcher.Constraint("PointOnObject", 20, 3, -2))
sketch3.addConstraint(Sketcher.Constraint("PointOnObject", 15, 2, -2))
sketch3.addConstraint(Sketcher.Constraint("PointOnObject", 18, 2, -2))
sketch3.addConstraint(Sketcher.Constraint("Parallel", 0, 3))
sketch3.addConstraint(Sketcher.Constraint("Parallel", 1, 4))
sketch3.addConstraint(Sketcher.Constraint("Parallel", 3, 7))
sketch3.addConstraint(Sketcher.Constraint("Parallel", 4, 8))
sketch3.addConstraint(Sketcher.Constraint("Parallel", 7, 10))
sketch3.addConstraint(Sketcher.Constraint("Parallel", 10, 15))
sketch3.addConstraint(Sketcher.Constraint("Parallel", 15, 18))
sketch3.addConstraint(Sketcher.Constraint("Parallel", 16, 19))
sketch3.addConstraint(Sketcher.Constraint("Horizontal", 2, 2, 4, 2))
sketch3.addConstraint(Sketcher.Constraint("Horizontal", 1, 2, 5, 2))
sketch3.addConstraint(Sketcher.Constraint("Vertical", 6, 3, 0, 2))
sketch3.addConstraint(Sketcher.Constraint("Equal", 12, 14))
sketch3.addConstraint(Sketcher.Constraint("Equal", 11, 15))
sketch3.addConstraint(Sketcher.Constraint("Diameter", 6, Q("5 mm")))
sketch3.addConstraint(Sketcher.Constraint("Angle", 0, Q("-30 deg")))
sketch3.addConstraint(Sketcher.Constraint("DistanceX", 4, 2, 2, 2, Q("7 mm")))
sketch3.addConstraint(Sketcher.Constraint("DistanceY", 2, 1, 2, 2, Q("4.041452 mm")))
sketch3.addConstraint(Sketcher.Constraint("DistanceY", 6, 3, -1, 1, Q("34.910139 mm")))
sketch3.addConstraint(Sketcher.Constraint("DistanceY", 0, 2, -1, 1, Q("38.951591 mm")))
sketch3.addConstraint(Sketcher.Constraint("DistanceY", -1, 1, 15, 2, Q("73.861729 mm")))
sketch3.addConstraint(Sketcher.Constraint("DistanceY", 1, 2, 20, 3, Q("106.751142 mm")))
sketch3.addConstraint(Sketcher.Constraint("DistanceX", -1, 1, 6, 3, Q("60.466134 mm")))
pocket1 = body.newObject("PartDesign::Pocket", "Pocket")
pocket1.Profile = sketch3
pocket1.Length = 4.5
pocket1.Reversed = True

doc.recompute()
